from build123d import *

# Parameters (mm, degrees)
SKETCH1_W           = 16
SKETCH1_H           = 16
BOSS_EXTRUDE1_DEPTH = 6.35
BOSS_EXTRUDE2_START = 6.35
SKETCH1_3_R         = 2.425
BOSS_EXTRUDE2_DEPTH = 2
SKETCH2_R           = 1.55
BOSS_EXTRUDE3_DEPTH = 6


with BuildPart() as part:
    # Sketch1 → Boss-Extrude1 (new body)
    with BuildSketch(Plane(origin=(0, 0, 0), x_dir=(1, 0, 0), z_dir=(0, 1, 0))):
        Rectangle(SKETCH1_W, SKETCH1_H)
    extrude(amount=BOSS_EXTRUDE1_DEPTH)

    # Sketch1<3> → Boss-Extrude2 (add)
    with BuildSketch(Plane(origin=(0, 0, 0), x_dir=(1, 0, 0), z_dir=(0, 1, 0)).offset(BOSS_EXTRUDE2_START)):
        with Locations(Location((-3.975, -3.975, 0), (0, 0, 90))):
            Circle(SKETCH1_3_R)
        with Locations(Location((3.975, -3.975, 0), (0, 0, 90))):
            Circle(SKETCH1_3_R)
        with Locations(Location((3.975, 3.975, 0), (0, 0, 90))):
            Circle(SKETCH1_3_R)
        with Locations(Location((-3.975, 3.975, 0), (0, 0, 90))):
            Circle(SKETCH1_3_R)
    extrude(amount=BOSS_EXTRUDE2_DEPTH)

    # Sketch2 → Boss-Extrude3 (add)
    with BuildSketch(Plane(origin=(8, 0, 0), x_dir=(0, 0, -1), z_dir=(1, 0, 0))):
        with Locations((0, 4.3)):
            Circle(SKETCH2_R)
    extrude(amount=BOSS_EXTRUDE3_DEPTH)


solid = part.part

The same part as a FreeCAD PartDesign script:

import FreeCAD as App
import Part
import Sketcher
Q = App.Units.Quantity

doc = App.newDocument("Part")
body = doc.addObject("PartDesign::Body", "Body")

# Sketch on XZ plane
sketch1 = doc.addObject("Sketcher::SketchObject", "Sketch")
body.addObject(sketch1)
sketch1.AttachmentSupport = (doc.XZ_Plane, [""])
sketch1.MapMode = "FlatFace"
sketch1.addGeometry([
    Part.LineSegment(App.Vector(-8, -8, 0), App.Vector(-8, 8, 0)),
    Part.LineSegment(App.Vector(-8, 8, 0), App.Vector(8, 8, 0)),
    Part.LineSegment(App.Vector(8, 8, 0), App.Vector(8, -8, 0)),
    Part.LineSegment(App.Vector(8, -8, 0), App.Vector(-8, -8, 0)),
], False)
sketch1.addConstraint([
    Sketcher.Constraint("Coincident", 0, 2, 1, 1),
    Sketcher.Constraint("Coincident", 1, 2, 2, 1),
    Sketcher.Constraint("Coincident", 2, 2, 3, 1),
    Sketcher.Constraint("Coincident", 3, 2, 0, 1),
    Sketcher.Constraint("Vertical", 0),
    Sketcher.Constraint("Horizontal", 1),
    Sketcher.Constraint("Vertical", 2),
    Sketcher.Constraint("Horizontal", 3),
    Sketcher.Constraint("Symmetric", 0, 2, 2, 2, -1, 1),
    Sketcher.Constraint("Equal", 3, 0),
    Sketcher.Constraint("DistanceX", 1, 1, 1, 2, Q("16 mm")),
])
pad1 = doc.addObject("PartDesign::Pad", "Pad")
body.addObject(pad1)
pad1.Profile = sketch1
pad1.Length = 6.35
pad1.Reversed = True

# Sketch on XZ plane
sketch2 = doc.addObject("Sketcher::SketchObject", "Sketch001")
body.addObject(sketch2)
sketch2.AttachmentSupport = (doc.XZ_Plane, [""])
sketch2.MapMode = "FlatFace"
sketch2.AttachmentOffset = App.Placement(App.Vector(0, 0, -6.35), App.Rotation())
sketch2.addGeometry([
    Part.Circle(App.Vector(-4, 4, 0), App.Vector(0, 0, 1), 2.4),
    Part.Circle(App.Vector(4, 4, 0), App.Vector(0, 0, 1), 2.4),
    Part.Circle(App.Vector(4, -4, 0), App.Vector(0, 0, 1), 2.4),
    Part.Circle(App.Vector(-4, -4, 0), App.Vector(0, 0, 1), 2.4),
], False)
sketch2.addConstraint([
    Sketcher.Constraint("Equal", 0, 1),
    Sketcher.Constraint("Equal", 1, 2),
    Sketcher.Constraint("Equal", 2, 3),
    Sketcher.Constraint("Symmetric", 0, 3, 2, 3, -1, 1),
    Sketcher.Constraint("Symmetric", 1, 3, 3, 3, -1, 1),
    Sketcher.Constraint("Symmetric", 0, 3, 1, 3, -2),
    Sketcher.Constraint("Diameter", 0, Q("4.85 mm")),
    Sketcher.Constraint("DistanceX", 0, 3, 1, 3, Q("7.95 mm")),
    Sketcher.Constraint("DistanceY", 2, 3, 1, 3, Q("7.95 mm")),
])
pad2 = doc.addObject("PartDesign::Pad", "Pad001")
body.addObject(pad2)
pad2.Profile = sketch2
pad2.Length = 2
pad2.Reversed = True

# Sketch on YZ plane
sketch3 = doc.addObject("Sketcher::SketchObject", "Sketch002")
body.addObject(sketch3)
sketch3.AttachmentSupport = (doc.YZ_Plane, [""])
sketch3.MapMode = "FlatFace"
sketch3.AttachmentOffset = App.Placement(App.Vector(0, 0, 8), App.Rotation())
sketch3.addGeometry(Part.Circle(App.Vector(4.3, 0, 0), App.Vector(0, 0, 1), 1.6), False)
sketch3.addConstraint([
    Sketcher.Constraint("PointOnObject", 0, 3, -1),
    Sketcher.Constraint("Diameter", 0, Q("3.1 mm")),
    Sketcher.Constraint("DistanceX", -1, 1, 0, 3, Q("4.3 mm")),
])
pad3 = doc.addObject("PartDesign::Pad", "Pad002")
body.addObject(pad3)
pad3.Profile = sketch3
pad3.Length = 6

doc.recompute()
